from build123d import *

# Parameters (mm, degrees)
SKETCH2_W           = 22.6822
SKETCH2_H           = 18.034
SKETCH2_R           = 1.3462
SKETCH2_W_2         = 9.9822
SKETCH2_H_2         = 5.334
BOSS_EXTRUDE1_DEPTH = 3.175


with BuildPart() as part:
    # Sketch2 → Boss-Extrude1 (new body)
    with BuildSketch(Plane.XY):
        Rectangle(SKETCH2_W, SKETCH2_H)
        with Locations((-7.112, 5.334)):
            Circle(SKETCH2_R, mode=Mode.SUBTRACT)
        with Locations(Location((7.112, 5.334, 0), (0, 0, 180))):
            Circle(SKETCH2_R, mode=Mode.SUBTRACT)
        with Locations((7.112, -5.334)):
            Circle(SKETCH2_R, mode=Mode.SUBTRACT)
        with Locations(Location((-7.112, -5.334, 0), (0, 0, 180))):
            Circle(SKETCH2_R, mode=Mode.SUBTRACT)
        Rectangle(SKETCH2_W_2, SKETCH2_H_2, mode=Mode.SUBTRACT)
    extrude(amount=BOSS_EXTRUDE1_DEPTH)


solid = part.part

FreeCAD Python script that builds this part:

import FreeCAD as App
import Part
import Sketcher
from FreeCAD import Vector
Q = App.Units.Quantity

doc = App.newDocument("Part")
params = doc.addObject("Spreadsheet::Sheet", "Params")
for row, (alias, value) in enumerate([
    ("sketch1_diameter", "0.106 in"),
    ("sketch1_height", "0.71 in"),
    ("sketch1_height2", "0.21 in"),
    ("sketch1_width", "0.893 in"),
    ("sketch1_width2", "0.393 in"),
    ("pad1_length", "0.125 in"),
], start=1):
    params.set(f"A{row}", alias)
    params.set(f"B{row}", "=" + value)
    params.setAlias(f"B{row}", alias)

body = doc.addObject("PartDesign::Body", "Body")

# Sketch on XY plane
sketch1 = body.newObject("Sketcher::SketchObject", "Sketch")
sketch1.AttachmentSupport = (doc.getObject("XY_Plane"), [""])
sketch1.MapMode = "FlatFace"
sketch1.addGeometry(Part.LineSegment(Vector(-11.3, 9, 0), Vector(-11.3, -9, 0)), False)
sketch1.addGeometry(Part.LineSegment(Vector(-11.3, -9, 0), Vector(11.3, -9, 0)), False)
sketch1.addGeometry(Part.LineSegment(Vector(11.3, -9, 0), Vector(11.3, 9, 0)), False)
sketch1.addGeometry(Part.LineSegment(Vector(11.3, 9, 0), Vector(-11.3, 9, 0)), False)
sketch1.addGeometry(Part.Circle(Vector(-7.1, -5.3, 0), Vector(0, 0, 1), 1.3), False)
sketch1.addGeometry(Part.Circle(Vector(7.1, -5.3, 0), Vector(0, 0, 1), 1.3), False)
sketch1.addGeometry(Part.Circle(Vector(-7.1, 5.3, 0), Vector(0, 0, 1), 1.3), False)
sketch1.addGeometry(Part.LineSegment(Vector(5, -2.7, 0), Vector(-5, -2.7, 0)), False)
sketch1.addGeometry(Part.LineSegment(Vector(-5, -2.7, 0), Vector(-5, 2.7, 0)), False)
sketch1.addGeometry(Part.LineSegment(Vector(-5, 2.7, 0), Vector(5, 2.7, 0)), False)
sketch1.addGeometry(Part.LineSegment(Vector(5, 2.7, 0), Vector(5, -2.7, 0)), False)
sketch1.addGeometry(Part.Circle(Vector(7.1, 5.3, 0), Vector(0, 0, 1), 1.3), False)
sketch1.addConstraint(Sketcher.Constraint("Coincident", 0, 2, 1, 1))
sketch1.addConstraint(Sketcher.Constraint("Coincident", 1, 2, 2, 1))
sketch1.addConstraint(Sketcher.Constraint("Coincident", 2, 2, 3, 1))
sketch1.addConstraint(Sketcher.Constraint("Coincident", 3, 2, 0, 1))
sketch1.addConstraint(Sketcher.Constraint("Coincident", 7, 2, 8, 1))
sketch1.addConstraint(Sketcher.Constraint("Coincident", 8, 2, 9, 1))
sketch1.addConstraint(Sketcher.Constraint("Coincident", 9, 2, 10, 1))
sketch1.addConstraint(Sketcher.Constraint("Coincident", 10, 2, 7, 1))
sketch1.addConstraint(Sketcher.Constraint("Vertical", 0))
sketch1.addConstraint(Sketcher.Constraint("Horizontal", 1))
sketch1.addConstraint(Sketcher.Constraint("Vertical", 2))
sketch1.addConstraint(Sketcher.Constraint("Horizontal", 3))
sketch1.addConstraint(Sketcher.Constraint("Horizontal", 7))
sketch1.addConstraint(Sketcher.Constraint("Vertical", 8))
sketch1.addConstraint(Sketcher.Constraint("Horizontal", 9))
sketch1.addConstraint(Sketcher.Constraint("Vertical", 10))
sketch1.addConstraint(Sketcher.Constraint("Equal", 4, 5))
sketch1.addConstraint(Sketcher.Constraint("Equal", 5, 6))
sketch1.addConstraint(Sketcher.Constraint("Equal", 6, 11))
sketch1.addConstraint(Sketcher.Constraint("Symmetric", 5, 3, 6, 3, -1, 1))
sketch1.addConstraint(Sketcher.Constraint("Symmetric", 4, 3, 11, 3, -1, 1))
sketch1.addConstraint(Sketcher.Constraint("Symmetric", 0, 2, 2, 2, -1, 1))
sketch1.addConstraint(Sketcher.Constraint("Symmetric", 7, 2, 9, 2, -1, 1))
sketch1.addConstraint(Sketcher.Constraint("Symmetric", 4, 3, 5, 3, -2))
sketch1.addConstraint(Sketcher.Constraint("Diameter", 4, Q("0.106 in")))
sketch1.addConstraint(Sketcher.Constraint("DistanceY", 0, 2, 0, 1, Q("0.71 in")))
sketch1.addConstraint(Sketcher.Constraint("DistanceY", 8, 1, 8, 2, Q("0.21 in")))
sketch1.addConstraint(Sketcher.Constraint("DistanceX", 1, 1, 1, 2, Q("0.893 in")))
sketch1.addConstraint(Sketcher.Constraint("DistanceX", 7, 2, 7, 1, Q("0.393 in")))
sketch1.addConstraint(Sketcher.Constraint("DistanceX", 4, 3, -1, 1, Q("0.28 in")))
sketch1.addConstraint(Sketcher.Constraint("DistanceY", 4, 3, -1, 1, Q("0.21 in")))
sketch1.setExpression("Constraints[24]", "Params.sketch1_diameter")
sketch1.setExpression("Constraints[25]", "Params.sketch1_height")
sketch1.setExpression("Constraints[26]", "Params.sketch1_height2")
sketch1.setExpression("Constraints[27]", "Params.sketch1_width")
sketch1.setExpression("Constraints[28]", "Params.sketch1_width2")
pad1 = body.newObject("PartDesign::Pad", "Pad")
pad1.Profile = sketch1
pad1.setExpression("Length", "Params.pad1_length")

doc.recompute()
